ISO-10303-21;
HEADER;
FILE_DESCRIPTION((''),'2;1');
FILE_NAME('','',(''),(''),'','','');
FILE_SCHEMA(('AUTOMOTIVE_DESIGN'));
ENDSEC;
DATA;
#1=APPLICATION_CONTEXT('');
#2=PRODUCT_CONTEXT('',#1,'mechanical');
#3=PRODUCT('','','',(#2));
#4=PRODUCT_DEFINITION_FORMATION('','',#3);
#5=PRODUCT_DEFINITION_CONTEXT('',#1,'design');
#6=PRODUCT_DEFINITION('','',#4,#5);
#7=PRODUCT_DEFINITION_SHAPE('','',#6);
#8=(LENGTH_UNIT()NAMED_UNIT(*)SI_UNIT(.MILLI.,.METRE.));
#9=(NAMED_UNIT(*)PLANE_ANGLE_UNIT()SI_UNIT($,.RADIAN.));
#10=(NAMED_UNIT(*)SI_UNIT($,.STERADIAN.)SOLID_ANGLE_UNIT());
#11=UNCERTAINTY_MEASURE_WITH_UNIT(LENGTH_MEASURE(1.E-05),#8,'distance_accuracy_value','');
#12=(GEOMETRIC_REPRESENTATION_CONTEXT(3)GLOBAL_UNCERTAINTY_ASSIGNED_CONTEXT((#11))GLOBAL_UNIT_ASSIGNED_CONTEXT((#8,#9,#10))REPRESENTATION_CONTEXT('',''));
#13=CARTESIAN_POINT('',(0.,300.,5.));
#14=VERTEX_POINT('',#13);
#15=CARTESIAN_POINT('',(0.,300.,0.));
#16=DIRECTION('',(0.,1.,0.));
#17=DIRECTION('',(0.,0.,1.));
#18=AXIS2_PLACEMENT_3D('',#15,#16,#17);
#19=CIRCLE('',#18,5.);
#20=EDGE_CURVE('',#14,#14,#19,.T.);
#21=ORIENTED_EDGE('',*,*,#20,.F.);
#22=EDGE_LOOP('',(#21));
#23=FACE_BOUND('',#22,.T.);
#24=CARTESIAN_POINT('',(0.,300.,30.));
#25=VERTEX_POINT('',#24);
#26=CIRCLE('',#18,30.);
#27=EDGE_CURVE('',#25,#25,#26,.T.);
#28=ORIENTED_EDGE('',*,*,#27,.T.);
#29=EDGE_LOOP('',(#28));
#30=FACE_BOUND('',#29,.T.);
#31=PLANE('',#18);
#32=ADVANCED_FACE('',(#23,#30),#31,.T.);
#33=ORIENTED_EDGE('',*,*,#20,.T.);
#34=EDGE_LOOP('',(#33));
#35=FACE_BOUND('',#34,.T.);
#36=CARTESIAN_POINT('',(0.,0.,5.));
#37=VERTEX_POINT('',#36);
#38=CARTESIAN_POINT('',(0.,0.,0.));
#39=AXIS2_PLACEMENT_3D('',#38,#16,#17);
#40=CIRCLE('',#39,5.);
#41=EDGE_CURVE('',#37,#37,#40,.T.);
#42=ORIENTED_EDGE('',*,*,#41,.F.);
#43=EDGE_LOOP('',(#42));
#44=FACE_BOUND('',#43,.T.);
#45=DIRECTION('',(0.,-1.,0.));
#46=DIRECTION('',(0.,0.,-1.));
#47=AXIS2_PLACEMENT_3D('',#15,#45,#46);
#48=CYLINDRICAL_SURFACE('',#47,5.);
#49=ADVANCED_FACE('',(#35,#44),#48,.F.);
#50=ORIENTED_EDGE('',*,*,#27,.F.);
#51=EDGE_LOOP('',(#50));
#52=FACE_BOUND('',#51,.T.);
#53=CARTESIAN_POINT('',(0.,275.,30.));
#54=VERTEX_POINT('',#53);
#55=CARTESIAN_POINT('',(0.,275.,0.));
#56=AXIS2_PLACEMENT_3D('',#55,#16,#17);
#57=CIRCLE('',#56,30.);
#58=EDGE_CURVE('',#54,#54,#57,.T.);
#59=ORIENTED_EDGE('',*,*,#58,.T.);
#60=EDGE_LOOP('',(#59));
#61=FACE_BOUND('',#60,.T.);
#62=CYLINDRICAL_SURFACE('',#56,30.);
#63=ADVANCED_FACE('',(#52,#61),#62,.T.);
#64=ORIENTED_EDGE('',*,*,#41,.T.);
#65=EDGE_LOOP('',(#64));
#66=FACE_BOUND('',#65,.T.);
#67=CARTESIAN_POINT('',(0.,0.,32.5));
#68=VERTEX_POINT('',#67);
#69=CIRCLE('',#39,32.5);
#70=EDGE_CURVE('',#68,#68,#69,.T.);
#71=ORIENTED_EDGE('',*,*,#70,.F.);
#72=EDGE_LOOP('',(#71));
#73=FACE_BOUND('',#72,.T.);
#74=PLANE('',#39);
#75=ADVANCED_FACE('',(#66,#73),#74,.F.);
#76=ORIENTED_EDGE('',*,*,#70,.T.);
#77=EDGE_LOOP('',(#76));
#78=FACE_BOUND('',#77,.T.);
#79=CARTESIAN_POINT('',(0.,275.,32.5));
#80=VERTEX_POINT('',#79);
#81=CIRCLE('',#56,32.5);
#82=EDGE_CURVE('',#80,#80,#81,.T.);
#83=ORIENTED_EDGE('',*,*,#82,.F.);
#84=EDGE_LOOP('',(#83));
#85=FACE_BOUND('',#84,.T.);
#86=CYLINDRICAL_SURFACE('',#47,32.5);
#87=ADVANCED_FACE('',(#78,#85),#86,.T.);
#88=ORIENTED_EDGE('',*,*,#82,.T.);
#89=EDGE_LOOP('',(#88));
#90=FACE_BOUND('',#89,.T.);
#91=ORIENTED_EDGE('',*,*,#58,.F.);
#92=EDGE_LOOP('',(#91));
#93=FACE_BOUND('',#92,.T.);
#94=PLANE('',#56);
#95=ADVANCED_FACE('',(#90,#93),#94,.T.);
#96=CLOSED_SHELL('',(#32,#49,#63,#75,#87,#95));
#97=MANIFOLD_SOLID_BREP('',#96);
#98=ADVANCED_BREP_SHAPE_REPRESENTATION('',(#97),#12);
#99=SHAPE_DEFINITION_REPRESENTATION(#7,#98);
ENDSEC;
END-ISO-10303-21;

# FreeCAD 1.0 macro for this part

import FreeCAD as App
import Part
import Sketcher

V = App.Vector

doc = App.newDocument("Part")
params = doc.addObject("Spreadsheet::Sheet", "Params")
for row, (alias, value) in enumerate([
    ("sketch1_diameter", "65 mm"),
    ("sketch1_diameter2", "10 mm"),
    ("pad1_length", "300 mm"),
    ("sketch2_diameter", "65 mm"),
    ("sketch2_diameter2", "60 mm"),
    ("pocket1_length", "25 mm"),
], start=1):
    params.set(f"A{row}", alias)
    params.set(f"B{row}", "=" + value)
    params.setAlias(f"B{row}", alias)

body = doc.addObject("PartDesign::Body", "Body")

# Sketch on XZ plane
sketch1 = body.newObject("Sketcher::SketchObject", "Sketch")
sketch1.AttachmentSupport = (doc.getObject("XZ_Plane"), [""])
sketch1.MapMode = "FlatFace"
sketch1.addGeometry(Part.Circle(V(0, 0, 0), V(0, 0, 1), 32), False)
sketch1.addGeometry(Part.Circle(V(0, 0, 0), V(0, 0, 1), 5), False)
sketch1.addConstraint(Sketcher.Constraint("Coincident", 0, 3, -1, 1))
sketch1.addConstraint(Sketcher.Constraint("Coincident", 1, 3, -1, 1))
sketch1.addConstraint(Sketcher.Constraint("Diameter", 0, 65.0))
sketch1.addConstraint(Sketcher.Constraint("Diameter", 1, 10.0))
sketch1.setExpression("Constraints[2]", "Params.sketch1_diameter")
sketch1.setExpression("Constraints[3]", "Params.sketch1_diameter2")
pad1 = body.newObject("PartDesign::Pad", "Pad")
pad1.Profile = sketch1
pad1.setExpression("Length", "Params.pad1_length")
pad1.Reversed = True

# Sketch on XZ plane
sketch2 = body.newObject("Sketcher::SketchObject", "Sketch001")
sketch2.AttachmentSupport = (doc.getObject("XZ_Plane"), [""])
sketch2.MapMode = "FlatFace"
sketch2.AttachmentOffset = App.Placement(V(0, 0, -300), App.Rotation())
sketch2.addGeometry(Part.Circle(V(0, 0, 0), V(0, 0, 1), 32), False)
sketch2.addGeometry(Part.Circle(V(0, 0, 0), V(0, 0, 1), 30), False)
sketch2.addConstraint(Sketcher.Constraint("Coincident", 0, 3, -1, 1))
sketch2.addConstraint(Sketcher.Constraint("Coincident", 1, 3, -1, 1))
sketch2.addConstraint(Sketcher.Constraint("Diameter", 0, 65.0))
sketch2.addConstraint(Sketcher.Constraint("Diameter", 1, 60.0))
sketch2.setExpression("Constraints[2]", "Params.sketch2_diameter")
sketch2.setExpression("Constraints[3]", "Params.sketch2_diameter2")
pocket1 = body.newObject("PartDesign::Pocket", "Pocket")
pocket1.Profile = sketch2
pocket1.setExpression("Length", "Params.pocket1_length")
pocket1.Reversed = True

doc.recompute()
